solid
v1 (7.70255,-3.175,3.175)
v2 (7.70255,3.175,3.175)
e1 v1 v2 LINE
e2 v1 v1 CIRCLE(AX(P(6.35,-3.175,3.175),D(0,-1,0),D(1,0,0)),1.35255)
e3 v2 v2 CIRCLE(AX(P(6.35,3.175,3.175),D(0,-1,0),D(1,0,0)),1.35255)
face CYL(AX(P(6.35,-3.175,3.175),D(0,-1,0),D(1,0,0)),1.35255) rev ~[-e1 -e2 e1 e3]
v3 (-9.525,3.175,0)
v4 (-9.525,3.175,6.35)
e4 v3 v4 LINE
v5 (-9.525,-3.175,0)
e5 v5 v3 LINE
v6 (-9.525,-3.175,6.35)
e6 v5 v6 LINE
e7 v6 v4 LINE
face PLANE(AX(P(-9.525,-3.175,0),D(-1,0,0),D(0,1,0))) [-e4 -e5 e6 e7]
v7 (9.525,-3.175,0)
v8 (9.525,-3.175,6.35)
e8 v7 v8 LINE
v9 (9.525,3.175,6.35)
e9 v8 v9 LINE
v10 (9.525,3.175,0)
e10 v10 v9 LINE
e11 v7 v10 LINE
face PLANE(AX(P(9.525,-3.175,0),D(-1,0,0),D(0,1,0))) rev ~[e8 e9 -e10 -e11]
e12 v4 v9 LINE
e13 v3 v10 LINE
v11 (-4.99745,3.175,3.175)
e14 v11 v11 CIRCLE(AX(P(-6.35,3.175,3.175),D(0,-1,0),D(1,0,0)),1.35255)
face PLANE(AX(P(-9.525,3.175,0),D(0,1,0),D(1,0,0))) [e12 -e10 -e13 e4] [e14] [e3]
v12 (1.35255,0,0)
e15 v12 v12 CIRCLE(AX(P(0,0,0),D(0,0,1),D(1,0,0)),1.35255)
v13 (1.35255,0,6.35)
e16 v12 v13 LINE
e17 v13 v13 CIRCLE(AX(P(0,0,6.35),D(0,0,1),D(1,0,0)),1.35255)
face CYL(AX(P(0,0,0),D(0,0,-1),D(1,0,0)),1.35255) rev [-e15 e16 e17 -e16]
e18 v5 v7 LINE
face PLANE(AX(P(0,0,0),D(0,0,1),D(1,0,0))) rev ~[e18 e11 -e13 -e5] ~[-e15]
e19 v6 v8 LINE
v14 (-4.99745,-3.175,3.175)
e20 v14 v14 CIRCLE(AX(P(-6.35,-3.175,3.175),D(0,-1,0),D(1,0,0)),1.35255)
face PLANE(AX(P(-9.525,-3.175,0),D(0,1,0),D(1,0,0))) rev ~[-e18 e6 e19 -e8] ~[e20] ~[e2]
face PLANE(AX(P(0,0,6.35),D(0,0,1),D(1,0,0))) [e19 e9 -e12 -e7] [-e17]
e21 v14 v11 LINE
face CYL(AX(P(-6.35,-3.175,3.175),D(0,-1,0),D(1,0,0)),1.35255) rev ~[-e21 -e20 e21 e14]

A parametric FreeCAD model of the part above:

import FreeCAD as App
import Part
import Sketcher
from FreeCAD import Vector
Q = App.Units.Quantity


def add_polygon(sketch, points):
    """Adds a closed chain of lines whose ends are joined by coincident constraints."""
    first, n = sketch.GeometryCount, len(points)
    for a, b in zip(points, points[1:] + points[:1]):
        sketch.addGeometry(Part.LineSegment(App.Vector(*a, 0), App.Vector(*b, 0)), False)
    for i in range(n):
        sketch.addConstraint(Sketcher.Constraint("Coincident", first + i, 2, first + (i + 1) % n, 1))

doc = App.newDocument("Part")
body = doc.addObject("PartDesign::Body", "Body")

# Sketch on XY plane
sketch1 = body.newObject("Sketcher::SketchObject", "Sketch")
sketch1.AttachmentSupport = (doc.getObject("XY_Plane"), [""])
sketch1.MapMode = "FlatFace"
add_polygon(sketch1, [(-9.5, 3.2), (-9.5, -3.2), (9.5, -3.2), (9.5, 3.2)])  # lines 0-3
sketch1.addGeometry(Part.Circle(Vector(0, 0, 0), Vector(0, 0, 1), 1.4), False)  # 4
sketch1.addConstraint(Sketcher.Constraint("Vertical", 0))
sketch1.addConstraint(Sketcher.Constraint("Horizontal", 1))
sketch1.addConstraint(Sketcher.Constraint("Vertical", 2))
sketch1.addConstraint(Sketcher.Constraint("Horizontal", 3))
sketch1.addConstraint(Sketcher.Constraint("Coincident", 4, 3, -1, 1))
sketch1.addConstraint(Sketcher.Constraint("Symmetric", 0, 2, 2, 2, -1, 1))
sketch1.addConstraint(Sketcher.Constraint("Diameter", 4, Q("0.1065 in")))
sketch1.addConstraint(Sketcher.Constraint("DistanceX", 1, 1, 1, 2, Q("0.75 in")))
sketch1.addConstraint(Sketcher.Constraint("DistanceY", 0, 2, 0, 1, Q("0.25 in")))
pad1 = body.newObject("PartDesign::Pad", "Pad")
pad1.Profile = sketch1
pad1.Length = Q("0.25 in")

# Sketch on XZ plane
sketch2 = body.newObject("Sketcher::SketchObject", "Sketch001")
sketch2.AttachmentSupport = (doc.getObject("XZ_Plane"), [""])
sketch2.MapMode = "FlatFace"
sketch2.AttachmentOffset = App.Placement(Vector(0, 0, 0.125 * 25.4), App.Rotation())
sketch2.addGeometry(Part.Circle(Vector(-6.3, 3.2, 0), Vector(0, 0, 1), 1.4), False)
sketch2.addGeometry(Part.Circle(Vector(6.3, 3.2, 0), Vector(0, 0, 1), 1.4), False)
sketch2.addConstraint(Sketcher.Constraint("Equal", 0, 1))
sketch2.addConstraint(Sketcher.Constraint("Symmetric", 0, 3, 1, 3, -2))
sketch2.addConstraint(Sketcher.Constraint("Diameter", 0, Q("0.1065 in")))
sketch2.addConstraint(Sketcher.Constraint("DistanceX", 0, 3, 1, 3, Q("0.5 in")))
sketch2.addConstraint(Sketcher.Constraint("DistanceY", -1, 1, 0, 3, Q("0.125 in")))
pocket1 = body.newObject("PartDesign::Pocket", "Pocket")
pocket1.Profile = sketch2
pocket1.Type = "ThroughAll"

doc.recompute()
